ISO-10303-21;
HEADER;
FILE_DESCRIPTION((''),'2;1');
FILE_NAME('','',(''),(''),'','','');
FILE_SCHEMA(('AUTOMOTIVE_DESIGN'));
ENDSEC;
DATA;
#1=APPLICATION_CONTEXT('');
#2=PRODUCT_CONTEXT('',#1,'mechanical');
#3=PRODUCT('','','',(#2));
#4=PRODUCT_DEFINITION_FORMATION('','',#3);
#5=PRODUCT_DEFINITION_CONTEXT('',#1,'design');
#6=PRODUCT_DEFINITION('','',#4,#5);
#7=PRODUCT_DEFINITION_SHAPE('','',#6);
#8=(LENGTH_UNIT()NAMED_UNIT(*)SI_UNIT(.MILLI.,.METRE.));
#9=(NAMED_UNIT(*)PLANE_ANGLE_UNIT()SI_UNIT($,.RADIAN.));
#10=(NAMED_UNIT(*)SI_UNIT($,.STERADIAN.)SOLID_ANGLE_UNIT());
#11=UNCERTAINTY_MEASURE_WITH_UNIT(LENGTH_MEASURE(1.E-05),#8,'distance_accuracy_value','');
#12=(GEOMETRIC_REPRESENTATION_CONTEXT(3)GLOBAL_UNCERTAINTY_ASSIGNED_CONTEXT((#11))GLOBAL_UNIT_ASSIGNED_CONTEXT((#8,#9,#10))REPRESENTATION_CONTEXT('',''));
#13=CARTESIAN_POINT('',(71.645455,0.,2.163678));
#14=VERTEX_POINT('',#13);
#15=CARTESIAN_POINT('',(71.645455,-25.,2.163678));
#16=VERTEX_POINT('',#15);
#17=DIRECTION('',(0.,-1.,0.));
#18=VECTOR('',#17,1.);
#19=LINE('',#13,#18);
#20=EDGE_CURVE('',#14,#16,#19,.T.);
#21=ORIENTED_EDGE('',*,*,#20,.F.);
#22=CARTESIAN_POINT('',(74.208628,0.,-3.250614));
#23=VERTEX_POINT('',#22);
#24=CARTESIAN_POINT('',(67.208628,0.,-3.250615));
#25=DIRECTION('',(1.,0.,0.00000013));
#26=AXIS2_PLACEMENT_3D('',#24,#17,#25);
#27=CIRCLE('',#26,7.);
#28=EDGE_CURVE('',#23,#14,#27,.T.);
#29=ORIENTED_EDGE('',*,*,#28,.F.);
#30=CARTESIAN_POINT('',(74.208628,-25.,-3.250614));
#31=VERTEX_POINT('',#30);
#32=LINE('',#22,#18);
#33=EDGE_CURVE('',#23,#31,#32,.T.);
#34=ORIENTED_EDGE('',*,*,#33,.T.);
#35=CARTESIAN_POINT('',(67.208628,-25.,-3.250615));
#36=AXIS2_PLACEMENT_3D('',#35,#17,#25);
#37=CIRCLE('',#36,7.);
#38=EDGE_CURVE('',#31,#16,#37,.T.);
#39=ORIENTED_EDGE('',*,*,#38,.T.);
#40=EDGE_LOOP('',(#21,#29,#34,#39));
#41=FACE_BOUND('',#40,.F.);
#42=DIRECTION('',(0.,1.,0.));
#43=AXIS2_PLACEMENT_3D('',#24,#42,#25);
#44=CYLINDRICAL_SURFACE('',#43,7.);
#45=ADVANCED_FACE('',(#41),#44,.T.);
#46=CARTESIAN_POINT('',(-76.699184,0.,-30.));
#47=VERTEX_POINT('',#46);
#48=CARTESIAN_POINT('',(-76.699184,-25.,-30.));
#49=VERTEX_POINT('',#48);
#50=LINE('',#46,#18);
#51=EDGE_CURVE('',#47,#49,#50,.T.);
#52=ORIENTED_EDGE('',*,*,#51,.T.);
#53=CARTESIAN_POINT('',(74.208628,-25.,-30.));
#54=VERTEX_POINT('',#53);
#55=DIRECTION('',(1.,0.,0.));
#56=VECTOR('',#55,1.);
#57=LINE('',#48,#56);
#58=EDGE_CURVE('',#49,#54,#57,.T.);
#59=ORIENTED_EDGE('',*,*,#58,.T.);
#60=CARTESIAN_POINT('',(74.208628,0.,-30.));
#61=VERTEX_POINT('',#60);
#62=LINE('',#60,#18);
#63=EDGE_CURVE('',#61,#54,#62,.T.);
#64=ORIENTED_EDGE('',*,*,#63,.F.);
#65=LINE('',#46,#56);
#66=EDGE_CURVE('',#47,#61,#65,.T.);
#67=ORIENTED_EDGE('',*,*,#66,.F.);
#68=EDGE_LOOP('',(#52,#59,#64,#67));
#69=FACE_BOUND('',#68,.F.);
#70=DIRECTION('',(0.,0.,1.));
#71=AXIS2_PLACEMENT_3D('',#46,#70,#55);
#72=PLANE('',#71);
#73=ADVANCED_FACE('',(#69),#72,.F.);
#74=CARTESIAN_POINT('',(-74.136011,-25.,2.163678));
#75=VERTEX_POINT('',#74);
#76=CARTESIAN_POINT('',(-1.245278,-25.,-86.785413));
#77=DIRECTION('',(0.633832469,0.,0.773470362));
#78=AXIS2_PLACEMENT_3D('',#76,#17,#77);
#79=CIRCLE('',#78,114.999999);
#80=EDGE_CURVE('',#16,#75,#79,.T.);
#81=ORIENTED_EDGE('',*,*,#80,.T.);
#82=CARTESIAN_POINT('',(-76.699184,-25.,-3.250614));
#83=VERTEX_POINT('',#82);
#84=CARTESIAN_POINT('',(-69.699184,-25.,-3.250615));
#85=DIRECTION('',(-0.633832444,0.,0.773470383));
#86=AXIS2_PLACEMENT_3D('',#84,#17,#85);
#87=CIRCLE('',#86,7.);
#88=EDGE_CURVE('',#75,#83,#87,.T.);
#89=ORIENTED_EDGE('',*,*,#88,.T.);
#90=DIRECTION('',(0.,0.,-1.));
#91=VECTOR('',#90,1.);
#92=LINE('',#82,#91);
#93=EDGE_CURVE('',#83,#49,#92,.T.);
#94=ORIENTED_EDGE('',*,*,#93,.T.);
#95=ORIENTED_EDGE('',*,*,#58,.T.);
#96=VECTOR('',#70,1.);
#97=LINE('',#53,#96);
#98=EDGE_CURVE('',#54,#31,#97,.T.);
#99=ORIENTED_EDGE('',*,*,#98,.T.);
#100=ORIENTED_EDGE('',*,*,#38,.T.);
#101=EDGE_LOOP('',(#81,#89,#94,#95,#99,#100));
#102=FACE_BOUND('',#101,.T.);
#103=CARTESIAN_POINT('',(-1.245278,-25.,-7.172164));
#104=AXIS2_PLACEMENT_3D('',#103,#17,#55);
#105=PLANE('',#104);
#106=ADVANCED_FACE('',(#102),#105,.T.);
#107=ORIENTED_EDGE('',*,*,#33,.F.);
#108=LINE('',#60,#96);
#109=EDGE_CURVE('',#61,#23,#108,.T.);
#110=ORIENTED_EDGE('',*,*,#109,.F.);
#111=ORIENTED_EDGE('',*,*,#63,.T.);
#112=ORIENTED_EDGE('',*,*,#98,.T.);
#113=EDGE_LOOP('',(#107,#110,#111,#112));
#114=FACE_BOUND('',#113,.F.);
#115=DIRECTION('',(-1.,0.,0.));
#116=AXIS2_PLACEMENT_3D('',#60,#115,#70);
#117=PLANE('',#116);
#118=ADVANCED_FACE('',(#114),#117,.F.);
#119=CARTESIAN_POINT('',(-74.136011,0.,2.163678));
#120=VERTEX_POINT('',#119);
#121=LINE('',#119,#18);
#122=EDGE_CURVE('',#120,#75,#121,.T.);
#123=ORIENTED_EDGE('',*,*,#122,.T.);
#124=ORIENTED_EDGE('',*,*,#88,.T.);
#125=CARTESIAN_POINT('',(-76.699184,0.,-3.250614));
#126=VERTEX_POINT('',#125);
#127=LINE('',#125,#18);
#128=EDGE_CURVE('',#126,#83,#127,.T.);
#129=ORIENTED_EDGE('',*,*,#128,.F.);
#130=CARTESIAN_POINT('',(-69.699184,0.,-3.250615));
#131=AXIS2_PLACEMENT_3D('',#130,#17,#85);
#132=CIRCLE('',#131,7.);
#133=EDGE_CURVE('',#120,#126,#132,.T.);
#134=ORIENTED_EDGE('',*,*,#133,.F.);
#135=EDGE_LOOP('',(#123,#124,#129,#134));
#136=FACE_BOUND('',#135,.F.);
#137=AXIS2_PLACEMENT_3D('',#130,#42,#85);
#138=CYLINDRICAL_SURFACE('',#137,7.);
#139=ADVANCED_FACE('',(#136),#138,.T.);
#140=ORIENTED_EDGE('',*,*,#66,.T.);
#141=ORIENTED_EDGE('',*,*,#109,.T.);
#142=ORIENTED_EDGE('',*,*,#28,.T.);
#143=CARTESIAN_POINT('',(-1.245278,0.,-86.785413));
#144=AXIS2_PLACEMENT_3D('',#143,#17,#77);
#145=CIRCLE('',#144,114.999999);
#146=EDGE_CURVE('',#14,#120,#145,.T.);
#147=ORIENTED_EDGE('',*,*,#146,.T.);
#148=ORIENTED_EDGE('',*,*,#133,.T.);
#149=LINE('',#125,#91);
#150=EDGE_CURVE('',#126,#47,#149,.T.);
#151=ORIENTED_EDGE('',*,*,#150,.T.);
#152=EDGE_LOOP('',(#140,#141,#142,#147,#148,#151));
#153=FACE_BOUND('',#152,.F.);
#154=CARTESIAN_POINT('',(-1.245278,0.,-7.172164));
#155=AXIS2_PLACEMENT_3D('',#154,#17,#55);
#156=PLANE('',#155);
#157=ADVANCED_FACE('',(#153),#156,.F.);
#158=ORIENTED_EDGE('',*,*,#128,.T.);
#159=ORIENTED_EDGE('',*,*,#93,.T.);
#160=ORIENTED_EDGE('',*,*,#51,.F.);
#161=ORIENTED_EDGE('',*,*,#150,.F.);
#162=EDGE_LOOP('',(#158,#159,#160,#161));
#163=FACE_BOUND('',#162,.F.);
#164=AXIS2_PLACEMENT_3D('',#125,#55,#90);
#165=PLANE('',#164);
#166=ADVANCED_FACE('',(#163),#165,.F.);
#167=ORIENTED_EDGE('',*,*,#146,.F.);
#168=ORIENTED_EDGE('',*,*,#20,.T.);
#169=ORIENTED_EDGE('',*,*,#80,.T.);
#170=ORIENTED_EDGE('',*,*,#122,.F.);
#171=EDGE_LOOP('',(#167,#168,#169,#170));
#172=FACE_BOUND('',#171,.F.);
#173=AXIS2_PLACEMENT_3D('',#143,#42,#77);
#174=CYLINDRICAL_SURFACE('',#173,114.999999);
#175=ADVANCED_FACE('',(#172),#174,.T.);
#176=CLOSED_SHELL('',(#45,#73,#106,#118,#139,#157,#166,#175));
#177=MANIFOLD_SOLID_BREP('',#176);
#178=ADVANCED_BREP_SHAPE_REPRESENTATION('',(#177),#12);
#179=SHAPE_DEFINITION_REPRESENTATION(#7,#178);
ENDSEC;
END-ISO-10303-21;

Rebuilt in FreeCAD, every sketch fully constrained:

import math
import FreeCAD as App
import Part
import Sketcher
from FreeCAD import Vector

doc = App.newDocument("Part")
body = doc.addObject("PartDesign::Body", "Body")

# Sketch on XZ plane
sketch1 = body.newObject("Sketcher::SketchObject", "Sketch")
sketch1.AttachmentSupport = (doc.getObject("XZ_Plane"), [""])
sketch1.MapMode = "FlatFace"
sketch1.addGeometry(Part.ArcOfCircle(Part.Circle(Vector(67.208628, -3.250615, 0), Vector(0, 0, 1), 7), math.radians(0.000007), math.radians(50.666557)), False)
sketch1.addGeometry(Part.ArcOfCircle(Part.Circle(Vector(-1.245278, -86.785413, 0), Vector(0, 0, 1), 114.999999), math.radians(50.666555), math.radians(129.333445)), False)
sketch1.addGeometry(Part.ArcOfCircle(Part.Circle(Vector(-69.699184, -3.250615, 0), Vector(0, 0, 1), 7), math.radians(129.333443), math.radians(179.999993)), False)
sketch1.addGeometry(Part.LineSegment(Vector(-76.699184, -3.250614, 0), Vector(-76.699184, -30, 0)), False)
sketch1.addGeometry(Part.LineSegment(Vector(-76.699184, -30, 0), Vector(74.208628, -30, 0)), False)
sketch1.addGeometry(Part.LineSegment(Vector(74.208628, -30, 0), Vector(74.208628, -3.250614, 0)), False)
sketch1.addConstraint(Sketcher.Constraint("Tangent", 0, 2, 1, 1))
sketch1.addConstraint(Sketcher.Constraint("Tangent", 1, 2, 2, 1))
sketch1.addConstraint(Sketcher.Constraint("Tangent", 2, 2, 3, 1))
sketch1.addConstraint(Sketcher.Constraint("Coincident", 3, 2, 4, 1))
sketch1.addConstraint(Sketcher.Constraint("Coincident", 4, 2, 5, 1))
sketch1.addConstraint(Sketcher.Constraint("Tangent", 5, 2, 0, 1))
sketch1.addConstraint(Sketcher.Constraint("Vertical", 3))
sketch1.addConstraint(Sketcher.Constraint("Horizontal", 4))
sketch1.addConstraint(Sketcher.Constraint("Vertical", 5))
sketch1.addConstraint(Sketcher.Constraint("Equal", 0, 2))
sketch1.addConstraint(Sketcher.Constraint("Horizontal", 0, 3, 2, 3))
sketch1.addConstraint(Sketcher.Constraint("Radius", 0, 7.0))
sketch1.addConstraint(Sketcher.Constraint("Radius", 1, 114.999999))
sketch1.addConstraint(Sketcher.Constraint("DistanceY", 3, 2, -1, 1, 30.0))
sketch1.addConstraint(Sketcher.Constraint("DistanceX", 4, 1, 4, 2, 150.907812))
sketch1.addConstraint(Sketcher.Constraint("DistanceY", 3, 2, 3, 1, 26.749386))
sketch1.addConstraint(Sketcher.Constraint("DistanceX", 1, 3, -1, 1, 1.245278))
pad1 = body.newObject("PartDesign::Pad", "Pad")
pad1.Profile = sketch1
pad1.Length = 25

doc.recompute()
